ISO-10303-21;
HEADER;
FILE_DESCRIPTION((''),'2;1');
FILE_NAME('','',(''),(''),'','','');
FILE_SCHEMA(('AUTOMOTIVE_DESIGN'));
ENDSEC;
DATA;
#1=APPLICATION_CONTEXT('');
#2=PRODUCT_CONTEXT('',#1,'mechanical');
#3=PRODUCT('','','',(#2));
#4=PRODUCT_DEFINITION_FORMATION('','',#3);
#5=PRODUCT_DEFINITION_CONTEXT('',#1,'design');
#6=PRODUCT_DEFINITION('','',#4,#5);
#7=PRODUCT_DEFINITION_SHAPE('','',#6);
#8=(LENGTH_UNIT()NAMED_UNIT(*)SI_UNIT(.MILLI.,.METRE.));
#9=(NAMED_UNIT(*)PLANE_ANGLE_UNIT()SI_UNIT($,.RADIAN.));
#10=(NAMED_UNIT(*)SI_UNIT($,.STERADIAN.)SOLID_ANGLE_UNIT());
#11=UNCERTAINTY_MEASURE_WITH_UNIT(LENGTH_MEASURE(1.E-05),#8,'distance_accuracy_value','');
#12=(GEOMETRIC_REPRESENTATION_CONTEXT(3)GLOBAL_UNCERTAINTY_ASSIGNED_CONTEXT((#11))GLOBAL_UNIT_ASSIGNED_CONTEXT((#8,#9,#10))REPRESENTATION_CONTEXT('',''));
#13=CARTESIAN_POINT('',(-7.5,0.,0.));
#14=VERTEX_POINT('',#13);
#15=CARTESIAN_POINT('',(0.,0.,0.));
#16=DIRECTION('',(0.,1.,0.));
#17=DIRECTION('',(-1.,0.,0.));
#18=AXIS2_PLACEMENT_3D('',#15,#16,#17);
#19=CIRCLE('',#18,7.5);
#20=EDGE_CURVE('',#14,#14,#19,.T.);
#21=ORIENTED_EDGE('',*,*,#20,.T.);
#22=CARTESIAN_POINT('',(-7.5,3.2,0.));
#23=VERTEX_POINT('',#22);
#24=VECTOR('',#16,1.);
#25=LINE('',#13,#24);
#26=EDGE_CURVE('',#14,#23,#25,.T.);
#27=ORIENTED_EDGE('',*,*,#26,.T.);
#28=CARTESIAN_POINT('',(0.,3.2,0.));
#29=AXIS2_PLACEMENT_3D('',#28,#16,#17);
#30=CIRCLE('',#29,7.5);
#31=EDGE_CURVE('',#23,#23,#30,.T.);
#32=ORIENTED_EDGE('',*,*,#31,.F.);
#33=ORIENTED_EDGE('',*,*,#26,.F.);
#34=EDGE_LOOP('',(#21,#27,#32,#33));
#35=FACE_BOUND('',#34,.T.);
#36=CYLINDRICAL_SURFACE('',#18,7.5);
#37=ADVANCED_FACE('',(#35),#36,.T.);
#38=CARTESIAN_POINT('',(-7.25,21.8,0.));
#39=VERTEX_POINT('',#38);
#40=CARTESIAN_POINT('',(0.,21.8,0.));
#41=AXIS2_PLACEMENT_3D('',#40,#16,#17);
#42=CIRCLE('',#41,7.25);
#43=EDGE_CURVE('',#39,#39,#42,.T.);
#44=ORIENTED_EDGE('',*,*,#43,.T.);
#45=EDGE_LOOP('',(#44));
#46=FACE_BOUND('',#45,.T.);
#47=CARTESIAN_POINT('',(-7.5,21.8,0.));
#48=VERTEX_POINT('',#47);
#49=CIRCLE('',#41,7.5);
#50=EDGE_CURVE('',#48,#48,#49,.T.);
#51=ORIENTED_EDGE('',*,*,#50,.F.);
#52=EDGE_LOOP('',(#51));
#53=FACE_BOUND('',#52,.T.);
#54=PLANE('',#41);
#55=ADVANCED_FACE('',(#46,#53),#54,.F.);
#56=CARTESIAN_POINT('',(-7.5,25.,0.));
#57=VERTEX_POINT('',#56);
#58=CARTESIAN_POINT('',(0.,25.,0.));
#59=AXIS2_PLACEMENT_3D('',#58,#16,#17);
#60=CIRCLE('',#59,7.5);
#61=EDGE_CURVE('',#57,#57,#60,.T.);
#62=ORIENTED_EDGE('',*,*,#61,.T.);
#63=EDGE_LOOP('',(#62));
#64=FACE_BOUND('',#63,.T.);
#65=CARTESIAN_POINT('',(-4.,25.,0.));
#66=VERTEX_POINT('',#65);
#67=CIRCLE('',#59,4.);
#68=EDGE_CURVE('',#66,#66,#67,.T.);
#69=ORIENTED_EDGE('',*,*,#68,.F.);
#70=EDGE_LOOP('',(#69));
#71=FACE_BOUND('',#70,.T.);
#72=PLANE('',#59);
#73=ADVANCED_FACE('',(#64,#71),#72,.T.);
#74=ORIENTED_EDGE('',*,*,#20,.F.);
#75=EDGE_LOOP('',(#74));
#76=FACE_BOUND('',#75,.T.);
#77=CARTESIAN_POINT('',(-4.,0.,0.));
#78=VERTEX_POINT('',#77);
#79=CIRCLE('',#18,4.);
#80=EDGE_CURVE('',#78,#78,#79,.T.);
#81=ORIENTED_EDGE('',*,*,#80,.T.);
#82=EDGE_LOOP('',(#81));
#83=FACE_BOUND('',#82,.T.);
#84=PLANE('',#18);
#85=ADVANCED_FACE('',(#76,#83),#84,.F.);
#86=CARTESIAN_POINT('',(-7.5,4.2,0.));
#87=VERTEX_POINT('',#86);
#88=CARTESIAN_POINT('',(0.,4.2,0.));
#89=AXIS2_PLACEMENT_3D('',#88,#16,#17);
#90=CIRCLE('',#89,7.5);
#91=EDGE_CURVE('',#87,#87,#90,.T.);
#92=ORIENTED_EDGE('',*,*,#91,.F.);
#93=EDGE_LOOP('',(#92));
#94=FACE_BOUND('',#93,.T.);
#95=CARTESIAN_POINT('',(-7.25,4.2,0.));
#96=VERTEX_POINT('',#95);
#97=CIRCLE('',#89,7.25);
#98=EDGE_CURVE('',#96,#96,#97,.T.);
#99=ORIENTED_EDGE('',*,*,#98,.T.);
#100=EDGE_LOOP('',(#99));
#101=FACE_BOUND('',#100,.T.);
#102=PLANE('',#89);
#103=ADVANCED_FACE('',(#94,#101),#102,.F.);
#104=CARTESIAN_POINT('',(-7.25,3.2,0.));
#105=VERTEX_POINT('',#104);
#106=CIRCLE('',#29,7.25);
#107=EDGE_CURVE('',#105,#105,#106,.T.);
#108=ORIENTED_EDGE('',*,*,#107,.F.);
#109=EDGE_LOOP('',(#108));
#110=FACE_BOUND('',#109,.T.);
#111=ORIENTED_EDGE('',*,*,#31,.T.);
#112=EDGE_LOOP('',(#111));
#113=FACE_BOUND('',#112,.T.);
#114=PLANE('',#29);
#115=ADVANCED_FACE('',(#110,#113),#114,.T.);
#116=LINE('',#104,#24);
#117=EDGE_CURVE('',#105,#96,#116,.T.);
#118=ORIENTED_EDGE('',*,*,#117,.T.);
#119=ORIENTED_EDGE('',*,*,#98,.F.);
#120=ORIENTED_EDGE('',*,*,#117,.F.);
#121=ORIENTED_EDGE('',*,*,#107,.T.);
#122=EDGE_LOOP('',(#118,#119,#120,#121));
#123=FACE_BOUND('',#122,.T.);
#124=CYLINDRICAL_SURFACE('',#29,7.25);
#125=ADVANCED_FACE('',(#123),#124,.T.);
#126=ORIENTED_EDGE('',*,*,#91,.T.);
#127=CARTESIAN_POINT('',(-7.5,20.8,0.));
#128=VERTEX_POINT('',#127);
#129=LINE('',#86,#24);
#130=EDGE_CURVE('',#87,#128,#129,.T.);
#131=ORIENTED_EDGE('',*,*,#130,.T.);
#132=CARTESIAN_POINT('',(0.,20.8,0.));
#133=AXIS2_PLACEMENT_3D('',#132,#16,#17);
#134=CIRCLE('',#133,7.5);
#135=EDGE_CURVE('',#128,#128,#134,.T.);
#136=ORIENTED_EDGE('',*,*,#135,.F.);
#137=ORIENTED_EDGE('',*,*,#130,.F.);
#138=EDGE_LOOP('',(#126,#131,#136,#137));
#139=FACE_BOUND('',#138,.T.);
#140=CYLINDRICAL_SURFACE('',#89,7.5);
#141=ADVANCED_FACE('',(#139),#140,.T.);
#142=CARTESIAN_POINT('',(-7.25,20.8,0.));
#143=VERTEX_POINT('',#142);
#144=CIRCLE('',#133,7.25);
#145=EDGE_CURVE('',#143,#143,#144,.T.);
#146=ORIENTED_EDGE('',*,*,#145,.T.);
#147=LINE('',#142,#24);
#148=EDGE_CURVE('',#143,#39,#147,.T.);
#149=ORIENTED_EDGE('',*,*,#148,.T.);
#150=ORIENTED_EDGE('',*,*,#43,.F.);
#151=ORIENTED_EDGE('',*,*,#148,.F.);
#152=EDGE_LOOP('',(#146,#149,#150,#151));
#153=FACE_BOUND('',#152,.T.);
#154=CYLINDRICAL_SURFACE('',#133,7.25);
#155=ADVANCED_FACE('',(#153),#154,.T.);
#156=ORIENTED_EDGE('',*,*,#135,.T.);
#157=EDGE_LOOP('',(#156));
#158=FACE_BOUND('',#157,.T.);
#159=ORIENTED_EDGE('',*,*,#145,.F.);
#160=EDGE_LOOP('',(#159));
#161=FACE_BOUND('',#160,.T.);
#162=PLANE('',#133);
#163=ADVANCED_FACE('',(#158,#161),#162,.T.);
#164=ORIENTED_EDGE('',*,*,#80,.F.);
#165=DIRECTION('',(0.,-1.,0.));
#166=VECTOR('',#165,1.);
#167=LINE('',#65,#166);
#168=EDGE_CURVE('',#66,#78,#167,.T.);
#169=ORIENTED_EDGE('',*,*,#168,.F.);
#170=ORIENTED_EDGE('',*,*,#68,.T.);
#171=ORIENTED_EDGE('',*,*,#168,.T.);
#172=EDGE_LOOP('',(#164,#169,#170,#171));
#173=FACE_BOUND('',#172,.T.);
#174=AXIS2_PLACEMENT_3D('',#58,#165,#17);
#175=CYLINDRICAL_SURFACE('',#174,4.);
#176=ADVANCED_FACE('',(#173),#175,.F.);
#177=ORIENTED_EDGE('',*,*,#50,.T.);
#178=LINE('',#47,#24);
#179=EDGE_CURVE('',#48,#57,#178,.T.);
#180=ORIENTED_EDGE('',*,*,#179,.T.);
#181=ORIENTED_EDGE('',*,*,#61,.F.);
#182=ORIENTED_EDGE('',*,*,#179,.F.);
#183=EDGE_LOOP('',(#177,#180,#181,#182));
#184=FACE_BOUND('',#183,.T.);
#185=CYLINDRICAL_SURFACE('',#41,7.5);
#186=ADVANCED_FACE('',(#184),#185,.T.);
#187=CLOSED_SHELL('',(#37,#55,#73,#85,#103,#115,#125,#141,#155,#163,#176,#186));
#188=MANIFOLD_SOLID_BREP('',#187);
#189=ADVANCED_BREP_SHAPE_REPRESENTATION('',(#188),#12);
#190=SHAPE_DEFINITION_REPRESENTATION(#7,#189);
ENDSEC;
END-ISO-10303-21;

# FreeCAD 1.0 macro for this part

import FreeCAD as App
import Part
import Sketcher

V = App.Vector


def add_polygon(sketch, points):
    """Adds a closed chain of lines whose ends are joined by coincident constraints."""
    first, n = sketch.GeometryCount, len(points)
    for a, b in zip(points, points[1:] + points[:1]):
        sketch.addGeometry(Part.LineSegment(App.Vector(*a, 0), App.Vector(*b, 0)), False)
    for i in range(n):
        sketch.addConstraint(Sketcher.Constraint("Coincident", first + i, 2, first + (i + 1) % n, 1))

doc = App.newDocument("Part")
body = doc.addObject("PartDesign::Body", "Body")

# Sketch on XY plane
sketch1 = body.newObject("Sketcher::SketchObject", "Sketch")
sketch1.AttachmentSupport = (doc.getObject("XY_Plane"), [""])
sketch1.MapMode = "FlatFace"
add_polygon(sketch1, [(-4, 25), (-7.5, 25), (-7.5, 21.8), (-7.25, 21.8), (-7.25, 20.8), (-7.5, 20.8), (-7.5, 4.2), (-7.25, 4.2), (-7.25, 3.2), (-7.5, 3.2), (-7.5, 0), (-4, 0)])  # lines 0-11
sketch1.addConstraint([
    Sketcher.Constraint("Horizontal", 0),
    Sketcher.Constraint("Vertical", 1),
    Sketcher.Constraint("Horizontal", 2),
    Sketcher.Constraint("Vertical", 3),
    Sketcher.Constraint("Horizontal", 4),
    Sketcher.Constraint("Vertical", 5),
    Sketcher.Constraint("Horizontal", 6),
    Sketcher.Constraint("Vertical", 7),
    Sketcher.Constraint("Horizontal", 8),
    Sketcher.Constraint("Vertical", 9),
    Sketcher.Constraint("Horizontal", 10),
    Sketcher.Constraint("Vertical", 11),
    Sketcher.Constraint("PointOnObject", 9, 2, -1),
    Sketcher.Constraint("Vertical", 1, 2, 4, 2),
    Sketcher.Constraint("Vertical", 3, 2, 6, 2),
    Sketcher.Constraint("Vertical", 5, 2, 8, 2),
    Sketcher.Constraint("Equal", 3, 7),
    Sketcher.Constraint("Equal", 1, 9),
    Sketcher.Constraint("DistanceY", 3, 2, 3, 1, 1.0),
    Sketcher.Constraint("DistanceY", 11, 1, 11, 2, 25.0),
    Sketcher.Constraint("DistanceX", 0, 2, 0, 1, 3.5),
    Sketcher.Constraint("DistanceY", 1, 2, 1, 1, 3.2),
    Sketcher.Constraint("DistanceX", 10, 2, -1, 1, 4.0),
    Sketcher.Constraint("DistanceX", 2, 1, 2, 2, 0.25),
])
revolution = body.newObject("PartDesign::Revolution", "Revolution")
revolution.Profile = sketch1
revolution.ReferenceAxis = (sketch1, ["V_Axis"])
revolution.Angle = 360

doc.recompute()
